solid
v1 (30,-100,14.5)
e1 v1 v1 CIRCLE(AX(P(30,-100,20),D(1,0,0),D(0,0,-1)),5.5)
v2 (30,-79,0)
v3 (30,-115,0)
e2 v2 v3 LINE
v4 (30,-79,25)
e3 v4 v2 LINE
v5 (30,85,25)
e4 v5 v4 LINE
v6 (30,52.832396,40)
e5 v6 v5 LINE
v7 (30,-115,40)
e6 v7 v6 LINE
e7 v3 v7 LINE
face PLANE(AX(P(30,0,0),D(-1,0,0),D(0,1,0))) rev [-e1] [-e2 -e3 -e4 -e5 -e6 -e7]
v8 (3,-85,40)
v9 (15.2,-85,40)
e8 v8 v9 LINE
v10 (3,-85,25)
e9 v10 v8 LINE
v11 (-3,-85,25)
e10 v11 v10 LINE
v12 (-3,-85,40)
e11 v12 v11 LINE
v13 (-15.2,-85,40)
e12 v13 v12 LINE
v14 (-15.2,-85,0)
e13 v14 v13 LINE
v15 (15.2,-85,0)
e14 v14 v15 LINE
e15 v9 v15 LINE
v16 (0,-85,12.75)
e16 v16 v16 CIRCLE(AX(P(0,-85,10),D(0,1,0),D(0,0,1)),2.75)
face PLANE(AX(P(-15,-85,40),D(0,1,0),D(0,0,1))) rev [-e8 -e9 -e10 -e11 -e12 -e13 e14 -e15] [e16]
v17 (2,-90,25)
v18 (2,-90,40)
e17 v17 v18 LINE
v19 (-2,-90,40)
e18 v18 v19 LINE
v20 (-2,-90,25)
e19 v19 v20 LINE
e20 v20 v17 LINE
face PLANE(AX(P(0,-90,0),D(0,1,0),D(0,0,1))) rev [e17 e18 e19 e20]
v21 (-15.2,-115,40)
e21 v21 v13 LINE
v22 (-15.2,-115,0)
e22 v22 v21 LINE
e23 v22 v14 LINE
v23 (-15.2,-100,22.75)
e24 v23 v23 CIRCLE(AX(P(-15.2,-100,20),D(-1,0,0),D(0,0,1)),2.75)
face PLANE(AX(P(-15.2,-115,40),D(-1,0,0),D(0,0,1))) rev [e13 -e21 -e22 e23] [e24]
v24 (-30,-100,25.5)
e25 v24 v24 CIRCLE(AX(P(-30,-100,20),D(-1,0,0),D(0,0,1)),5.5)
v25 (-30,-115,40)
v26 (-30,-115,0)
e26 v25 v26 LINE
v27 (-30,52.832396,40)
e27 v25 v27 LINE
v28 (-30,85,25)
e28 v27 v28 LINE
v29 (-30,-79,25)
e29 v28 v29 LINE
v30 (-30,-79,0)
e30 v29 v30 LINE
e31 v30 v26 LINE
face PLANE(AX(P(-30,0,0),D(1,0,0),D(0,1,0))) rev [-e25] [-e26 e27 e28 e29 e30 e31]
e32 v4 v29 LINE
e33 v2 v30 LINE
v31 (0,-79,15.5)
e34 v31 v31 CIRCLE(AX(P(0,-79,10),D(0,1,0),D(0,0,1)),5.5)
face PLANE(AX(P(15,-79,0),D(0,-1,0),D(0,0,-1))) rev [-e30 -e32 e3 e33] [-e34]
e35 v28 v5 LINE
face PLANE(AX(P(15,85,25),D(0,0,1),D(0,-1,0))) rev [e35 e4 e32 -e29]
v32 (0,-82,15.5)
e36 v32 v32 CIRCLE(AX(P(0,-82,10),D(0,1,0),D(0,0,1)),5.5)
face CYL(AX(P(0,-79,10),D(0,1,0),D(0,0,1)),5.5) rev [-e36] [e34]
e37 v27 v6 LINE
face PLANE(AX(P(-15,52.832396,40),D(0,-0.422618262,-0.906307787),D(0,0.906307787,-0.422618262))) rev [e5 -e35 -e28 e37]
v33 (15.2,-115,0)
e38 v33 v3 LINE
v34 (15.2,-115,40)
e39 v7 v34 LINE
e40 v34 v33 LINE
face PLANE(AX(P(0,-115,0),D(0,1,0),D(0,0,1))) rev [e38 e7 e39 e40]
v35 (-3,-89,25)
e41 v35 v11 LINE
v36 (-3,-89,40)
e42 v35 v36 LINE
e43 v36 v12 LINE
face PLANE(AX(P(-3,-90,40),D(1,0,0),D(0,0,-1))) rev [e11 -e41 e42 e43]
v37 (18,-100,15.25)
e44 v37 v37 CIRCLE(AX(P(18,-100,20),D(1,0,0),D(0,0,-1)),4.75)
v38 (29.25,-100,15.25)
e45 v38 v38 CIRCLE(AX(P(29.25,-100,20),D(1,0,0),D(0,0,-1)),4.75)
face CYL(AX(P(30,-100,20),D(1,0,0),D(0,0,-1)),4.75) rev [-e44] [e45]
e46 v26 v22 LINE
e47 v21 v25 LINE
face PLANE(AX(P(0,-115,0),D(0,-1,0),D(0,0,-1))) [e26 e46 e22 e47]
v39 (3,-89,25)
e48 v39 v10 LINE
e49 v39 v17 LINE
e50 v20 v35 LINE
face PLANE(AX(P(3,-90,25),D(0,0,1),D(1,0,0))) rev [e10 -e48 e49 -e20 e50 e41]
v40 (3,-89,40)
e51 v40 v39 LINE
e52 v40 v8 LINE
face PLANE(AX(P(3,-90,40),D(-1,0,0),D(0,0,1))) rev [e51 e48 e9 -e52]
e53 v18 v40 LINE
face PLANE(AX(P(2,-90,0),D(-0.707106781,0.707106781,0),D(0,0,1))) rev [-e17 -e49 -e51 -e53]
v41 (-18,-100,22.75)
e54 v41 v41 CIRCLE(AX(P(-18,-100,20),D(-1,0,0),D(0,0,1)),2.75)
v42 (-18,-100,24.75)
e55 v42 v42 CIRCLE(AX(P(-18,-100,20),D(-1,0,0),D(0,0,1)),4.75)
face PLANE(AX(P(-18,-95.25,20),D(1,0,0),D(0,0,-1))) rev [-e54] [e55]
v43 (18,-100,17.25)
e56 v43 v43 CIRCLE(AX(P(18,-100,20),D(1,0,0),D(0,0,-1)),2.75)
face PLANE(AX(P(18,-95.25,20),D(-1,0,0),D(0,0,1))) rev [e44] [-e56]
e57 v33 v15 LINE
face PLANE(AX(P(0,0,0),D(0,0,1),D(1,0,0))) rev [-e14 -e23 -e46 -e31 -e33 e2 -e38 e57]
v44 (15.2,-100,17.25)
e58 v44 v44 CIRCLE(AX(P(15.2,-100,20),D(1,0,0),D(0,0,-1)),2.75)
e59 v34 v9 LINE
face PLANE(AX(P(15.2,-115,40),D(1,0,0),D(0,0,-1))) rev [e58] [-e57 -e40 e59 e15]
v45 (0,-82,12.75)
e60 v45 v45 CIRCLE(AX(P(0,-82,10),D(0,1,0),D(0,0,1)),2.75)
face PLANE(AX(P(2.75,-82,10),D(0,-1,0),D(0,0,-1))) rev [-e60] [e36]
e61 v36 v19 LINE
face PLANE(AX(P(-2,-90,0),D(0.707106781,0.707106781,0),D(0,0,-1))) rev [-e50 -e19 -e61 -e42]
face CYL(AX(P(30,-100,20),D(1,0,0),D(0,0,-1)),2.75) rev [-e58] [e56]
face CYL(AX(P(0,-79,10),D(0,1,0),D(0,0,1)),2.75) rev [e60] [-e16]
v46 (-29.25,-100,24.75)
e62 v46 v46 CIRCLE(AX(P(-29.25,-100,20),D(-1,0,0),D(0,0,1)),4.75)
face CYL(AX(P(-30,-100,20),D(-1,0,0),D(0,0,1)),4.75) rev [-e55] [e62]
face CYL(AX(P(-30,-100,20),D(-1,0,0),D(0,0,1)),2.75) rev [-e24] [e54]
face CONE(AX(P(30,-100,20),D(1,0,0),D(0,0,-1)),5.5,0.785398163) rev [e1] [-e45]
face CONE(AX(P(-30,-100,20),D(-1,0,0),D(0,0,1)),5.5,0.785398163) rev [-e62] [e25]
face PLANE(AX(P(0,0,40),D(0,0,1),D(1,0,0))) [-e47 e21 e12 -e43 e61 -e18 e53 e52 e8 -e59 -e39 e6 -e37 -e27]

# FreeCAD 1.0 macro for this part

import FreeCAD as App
import Part
import Sketcher
Q = App.Units.Quantity


def edges_at(feature, points):
    """Names of the edges that pass closest to the given points."""
    edges = feature.Shape.Edges
    near = lambda p: min(range(len(edges)), key=lambda i: edges[i].distToShape(Part.Vertex(*p))[0])
    return sorted({f"Edge{near(p) + 1}" for p in points})

doc = App.newDocument("Part")
body = doc.addObject("PartDesign::Body", "Body")

# Sketch on XY plane
sketch1 = doc.addObject("Sketcher::SketchObject", "Sketch")
body.addObject(sketch1)
sketch1.AttachmentSupport = (doc.XY_Plane, [""])
sketch1.MapMode = "FlatFace"
sketch1.addGeometry([
    Part.LineSegment(App.Vector(-15, 85, 0), App.Vector(-15, -85, 0)),
    Part.LineSegment(App.Vector(-15, -85, 0), App.Vector(15, -85, 0)),
    Part.LineSegment(App.Vector(15, -85, 0), App.Vector(15, 85, 0)),
    Part.LineSegment(App.Vector(15, 85, 0), App.Vector(-15, 85, 0)),
], False)
sketch1.addConstraint([
    Sketcher.Constraint("Coincident", 0, 2, 1, 1),
    Sketcher.Constraint("Coincident", 1, 2, 2, 1),
    Sketcher.Constraint("Coincident", 2, 2, 3, 1),
    Sketcher.Constraint("Coincident", 3, 2, 0, 1),
    Sketcher.Constraint("Vertical", 0),
    Sketcher.Constraint("Horizontal", 1),
    Sketcher.Constraint("Vertical", 2),
    Sketcher.Constraint("Horizontal", 3),
    Sketcher.Constraint("Symmetric", 0, 2, 2, 2, -1, 1),
    Sketcher.Constraint("DistanceX", 1, 1, 1, 2, Q("30 mm")),
    Sketcher.Constraint("DistanceY", 0, 2, 0, 1, Q("170 mm")),
])
pad1 = doc.addObject("PartDesign::Pad", "Pad")
body.addObject(pad1)
pad1.Profile = sketch1
pad1.Length = 40

# Sketch on YZ plane
sketch2 = doc.addObject("Sketcher::SketchObject", "Sketch001")
body.addObject(sketch2)
sketch2.AttachmentSupport = (doc.YZ_Plane, [""])
sketch2.MapMode = "FlatFace"
sketch2.AttachmentOffset = App.Placement(App.Vector(0, 0, 15), App.Rotation())
sketch2.addGeometry([
    Part.LineSegment(App.Vector(85, 40, 0), App.Vector(53, 40, 0)),
    Part.LineSegment(App.Vector(53, 40, 0), App.Vector(85, 25, 0)),
    Part.LineSegment(App.Vector(85, 25, 0), App.Vector(85, 40, 0)),
], False)
sketch2.addConstraint([
    Sketcher.Constraint("Coincident", 0, 2, 1, 1),
    Sketcher.Constraint("Coincident", 1, 2, 2, 1),
    Sketcher.Constraint("Coincident", 2, 2, 0, 1),
    Sketcher.Constraint("Horizontal", 0),
    Sketcher.Constraint("Vertical", 2),
    Sketcher.Constraint("DistanceY", 2, 1, 2, 2, Q("15 mm")),
    Sketcher.Constraint("Angle", 1, Q("-25 deg")),
    Sketcher.Constraint("DistanceY", -1, 1, 0, 2, Q("40 mm")),
    Sketcher.Constraint("DistanceX", -1, 1, 1, 2, Q("85 mm")),
])
pocket1 = doc.addObject("PartDesign::Pocket", "Pocket")
body.addObject(pocket1)
pocket1.Profile = sketch2
pocket1.Type = "ThroughAll"

# Sketch on YZ plane
sketch3 = doc.addObject("Sketcher::SketchObject", "Sketch002")
body.addObject(sketch3)
sketch3.AttachmentSupport = (doc.YZ_Plane, [""])
sketch3.MapMode = "FlatFace"
sketch3.AttachmentOffset = App.Placement(App.Vector(0, 0, -15), App.Rotation())
sketch3.addGeometry([
    Part.LineSegment(App.Vector(85, 0, 0), App.Vector(-79, 0, 0)),
    Part.LineSegment(App.Vector(-79, 0, 0), App.Vector(-79, 25, 0)),
    Part.LineSegment(App.Vector(-79, 25, 0), App.Vector(85, 25, 0)),
    Part.LineSegment(App.Vector(85, 25, 0), App.Vector(85, 0, 0)),
], False)
sketch3.addConstraint([
    Sketcher.Constraint("Coincident", 0, 2, 1, 1),
    Sketcher.Constraint("Coincident", 1, 2, 2, 1),
    Sketcher.Constraint("Coincident", 2, 2, 3, 1),
    Sketcher.Constraint("Coincident", 3, 2, 0, 1),
    Sketcher.Constraint("Horizontal", 0),
    Sketcher.Constraint("Vertical", 1),
    Sketcher.Constraint("Horizontal", 2),
    Sketcher.Constraint("Vertical", 3),
    Sketcher.Constraint("PointOnObject", 0, 2, -1),
    Sketcher.Constraint("DistanceX", 0, 2, 0, 1, Q("164 mm")),
    Sketcher.Constraint("DistanceY", 1, 1, 1, 2, Q("25 mm")),
    Sketcher.Constraint("DistanceX", 0, 2, -1, 1, Q("79 mm")),
])
pocket2 = doc.addObject("PartDesign::Pocket", "Pocket001")
body.addObject(pocket2)
pocket2.Profile = sketch3
pocket2.Type = "ThroughAll"
pocket2.Reversed = True

# Sketch on XZ plane
sketch4 = doc.addObject("Sketcher::SketchObject", "Sketch003")
body.addObject(sketch4)
sketch4.AttachmentSupport = (doc.XZ_Plane, [""])
sketch4.MapMode = "FlatFace"
sketch4.AttachmentOffset = App.Placement(App.Vector(0, 0, 79), App.Rotation())
sketch4.addGeometry(Part.Circle(App.Vector(0, 10, 0), App.Vector(0, 0, 1), 2.8), False)
sketch4.addConstraint([
    Sketcher.Constraint("PointOnObject", 0, 3, -2),
    Sketcher.Constraint("Diameter", 0, Q("5.5 mm")),
    Sketcher.Constraint("DistanceY", -1, 1, 0, 3, Q("10 mm")),
])
doc.recompute()
hole = doc.addObject("PartDesign::Hole", "Hole")
body.addObject(hole)
hole.Profile = sketch4
hole.ThreadType = "None"
hole.Diameter = 5.5
hole.DepthType = "ThroughAll"
hole.HoleCutType = "Counterbore"
hole.HoleCutDiameter = 11
hole.HoleCutDepth = 3
hole.Reversed = True

# Sketch on XZ plane
sketch5 = doc.addObject("Sketcher::SketchObject", "Sketch004")
body.addObject(sketch5)
sketch5.AttachmentSupport = (doc.XZ_Plane, [""])
sketch5.MapMode = "FlatFace"
sketch5.AttachmentOffset = App.Placement(App.Vector(0, 0, 85), App.Rotation())
sketch5.addGeometry([
    Part.LineSegment(App.Vector(-3, 40, 0), App.Vector(-3, 25, 0)),
    Part.LineSegment(App.Vector(-3, 25, 0), App.Vector(3, 25, 0)),
    Part.LineSegment(App.Vector(3, 25, 0), App.Vector(3, 40, 0)),
    Part.LineSegment(App.Vector(3, 40, 0), App.Vector(-3, 40, 0)),
], False)
sketch5.addConstraint([
    Sketcher.Constraint("Coincident", 0, 2, 1, 1),
    Sketcher.Constraint("Coincident", 1, 2, 2, 1),
    Sketcher.Constraint("Coincident", 2, 2, 3, 1),
    Sketcher.Constraint("Coincident", 3, 2, 0, 1),
    Sketcher.Constraint("Vertical", 0),
    Sketcher.Constraint("Horizontal", 1),
    Sketcher.Constraint("Vertical", 2),
    Sketcher.Constraint("Horizontal", 3),
    Sketcher.Constraint("DistanceX", 1, 1, 1, 2, Q("6 mm")),
    Sketcher.Constraint("DistanceY", 0, 2, 0, 1, Q("15 mm")),
    Sketcher.Constraint("DistanceX", 0, 2, -1, 1, Q("3 mm")),
    Sketcher.Constraint("DistanceY", -1, 1, 0, 2, Q("25 mm")),
])
pad2 = doc.addObject("PartDesign::Pad", "Pad001")
body.addObject(pad2)
pad2.Profile = sketch5
pad2.Length = 5
doc.recompute()

chamfer = doc.addObject("PartDesign::Chamfer", "Chamfer")
body.addObject(chamfer)
chamfer.Base = (pad2, edges_at(pad2, [(3, -90, 32.5), (-3, -90, 32.5)]))
chamfer.Size = 1

# Sketch on YZ plane
sketch6 = doc.addObject("Sketcher::SketchObject", "Sketch005")
body.addObject(sketch6)
sketch6.AttachmentSupport = (doc.YZ_Plane, [""])
sketch6.MapMode = "FlatFace"
sketch6.AttachmentOffset = App.Placement(App.Vector(0, 0, -15), App.Rotation())
sketch6.addGeometry([
    Part.LineSegment(App.Vector(-79, 25, 0), App.Vector(-79, 0, 0)),  # 0
    Part.LineSegment(App.Vector(-79, 0, 0), App.Vector(-85, 0, 0)),  # 1
    Part.LineSegment(App.Vector(-85, 0, 0), App.Vector(-85, 40, 0)),  # 2
    Part.LineSegment(App.Vector(-85, 40, 0), App.Vector(53, 40, 0)),  # 3
    Part.LineSegment(App.Vector(53, 40, 0), App.Vector(85, 25, 0)),  # 4
    Part.LineSegment(App.Vector(85, 25, 0), App.Vector(-79, 25, 0)),  # 5
], False)
sketch6.addConstraint([
    Sketcher.Constraint("Coincident", 0, 2, 1, 1),
    Sketcher.Constraint("Coincident", 1, 2, 2, 1),
    Sketcher.Constraint("Coincident", 2, 2, 3, 1),
    Sketcher.Constraint("Coincident", 3, 2, 4, 1),
    Sketcher.Constraint("Coincident", 4, 2, 5, 1),
    Sketcher.Constraint("Coincident", 5, 2, 0, 1),
    Sketcher.Constraint("Vertical", 0),
    Sketcher.Constraint("Horizontal", 1),
    Sketcher.Constraint("Vertical", 2),
    Sketcher.Constraint("Horizontal", 3),
    Sketcher.Constraint("Horizontal", 5),
    Sketcher.Constraint("PointOnObject", 0, 2, -1),
    Sketcher.Constraint("DistanceX", 1, 2, 1, 1, Q("6 mm")),
    Sketcher.Constraint("DistanceX", 5, 2, 5, 1, Q("164 mm")),
    Sketcher.Constraint("DistanceY", 0, 2, 0, 1, Q("25 mm")),
    Sketcher.Constraint("DistanceY", 2, 1, 2, 2, Q("40 mm")),
    Sketcher.Constraint("Angle", 4, Q("-25 deg")),
    Sketcher.Constraint("DistanceX", 0, 2, -1, 1, Q("79 mm")),
])
pad3 = doc.addObject("PartDesign::Pad", "Pad002")
body.addObject(pad3)
pad3.Profile = sketch6
pad3.Length = 15
pad3.Reversed = True
doc.recompute()

mirrored = doc.addObject("PartDesign::Mirrored", "Mirrored")
body.addObject(mirrored)
mirrored.Originals = [pad3]
mirrored.MirrorPlane = (doc.YZ_Plane, [""])
body.Tip = mirrored

# Sketch on XZ plane
sketch7 = doc.addObject("Sketcher::SketchObject", "Sketch006")
body.addObject(sketch7)
sketch7.AttachmentSupport = (doc.XZ_Plane, [""])
sketch7.MapMode = "FlatFace"
sketch7.AttachmentOffset = App.Placement(App.Vector(0, 0, 85), App.Rotation())
sketch7.addGeometry([
    Part.LineSegment(App.Vector(-30, 40, 0), App.Vector(-30, 0, 0)),  # 0
    Part.LineSegment(App.Vector(-30, 0, 0), App.Vector(-15, 0, 0)),  # 1
    Part.LineSegment(App.Vector(-15, 0, 0), App.Vector(-15, 40, 0)),  # 2
    Part.LineSegment(App.Vector(-15, 40, 0), App.Vector(-30, 40, 0)),  # 3
    Part.LineSegment(App.Vector(15, 40, 0), App.Vector(15, 0, 0)),  # 4
    Part.LineSegment(App.Vector(15, 0, 0), App.Vector(30, 0, 0)),  # 5
    Part.LineSegment(App.Vector(30, 0, 0), App.Vector(30, 40, 0)),  # 6
    Part.LineSegment(App.Vector(30, 40, 0), App.Vector(15, 40, 0)),  # 7
], False)
sketch7.addConstraint([
    Sketcher.Constraint("Coincident", 0, 2, 1, 1),
    Sketcher.Constraint("Coincident", 1, 2, 2, 1),
    Sketcher.Constraint("Coincident", 2, 2, 3, 1),
    Sketcher.Constraint("Coincident", 3, 2, 0, 1),
    Sketcher.Constraint("Coincident", 4, 2, 5, 1),
    Sketcher.Constraint("Coincident", 5, 2, 6, 1),
    Sketcher.Constraint("Coincident", 6, 2, 7, 1),
    Sketcher.Constraint("Coincident", 7, 2, 4, 1),
    Sketcher.Constraint("Vertical", 0),
    Sketcher.Constraint("Horizontal", 1),
    Sketcher.Constraint("Vertical", 2),
    Sketcher.Constraint("Horizontal", 3),
    Sketcher.Constraint("Vertical", 4),
    Sketcher.Constraint("Horizontal", 5),
    Sketcher.Constraint("Vertical", 6),
    Sketcher.Constraint("Horizontal", 7),
    Sketcher.Constraint("Symmetric", 1, 2, 4, 2, -1, 1),
    Sketcher.Constraint("Symmetric", 0, 2, 5, 2, -2),
    Sketcher.Constraint("Horizontal", 3, 2, 6, 2),
    Sketcher.Constraint("DistanceY", 0, 2, 0, 1, Q("40 mm")),
    Sketcher.Constraint("DistanceX", 1, 1, 1, 2, Q("14.8 mm")),
    Sketcher.Constraint("DistanceX", 0, 2, -1, 1, Q("30 mm")),
])
pad4 = doc.addObject("PartDesign::Pad", "Pad003")
body.addObject(pad4)
pad4.Profile = sketch7
pad4.Length = 30

# Sketch on XZ plane
sketch8 = doc.addObject("Sketcher::SketchObject", "Sketch007")
body.addObject(sketch8)
sketch8.AttachmentSupport = (doc.XZ_Plane, [""])
sketch8.MapMode = "FlatFace"
sketch8.AttachmentOffset = App.Placement(App.Vector(0, 0, 100), App.Rotation())
sketch8.addGeometry([
    Part.LineSegment(App.Vector(15.2, 20, 0), App.Vector(30, 20, 0)),  # 0
    Part.LineSegment(App.Vector(30, 20, 0), App.Vector(30, 14.5, 0)),  # 1
    Part.LineSegment(App.Vector(30, 14.5, 0), App.Vector(29.2, 15.2, 0)),  # 2
    Part.LineSegment(App.Vector(29.2, 15.2, 0), App.Vector(18, 15.2, 0)),  # 3
    Part.LineSegment(App.Vector(18, 15.2, 0), App.Vector(18, 17.2, 0)),  # 4
    Part.LineSegment(App.Vector(18, 17.2, 0), App.Vector(15.2, 17.2, 0)),  # 5
    Part.LineSegment(App.Vector(15.2, 17.2, 0), App.Vector(15.2, 20, 0)),  # 6
], False)
sketch8.addGeometry(Part.LineSegment(App.Vector(30, 20, 0), App.Vector(15.2, 20, 0)), True)  # axis
sketch8.addConstraint([
    Sketcher.Constraint("Coincident", 0, 2, 1, 1),
    Sketcher.Constraint("Coincident", 1, 2, 2, 1),
    Sketcher.Constraint("Coincident", 2, 2, 3, 1),
    Sketcher.Constraint("Coincident", 3, 2, 4, 1),
    Sketcher.Constraint("Coincident", 4, 2, 5, 1),
    Sketcher.Constraint("Coincident", 5, 2, 6, 1),
    Sketcher.Constraint("Coincident", 6, 2, 0, 1),
    Sketcher.Constraint("Horizontal", 0),
    Sketcher.Constraint("Vertical", 1),
    Sketcher.Constraint("Horizontal", 3),
    Sketcher.Constraint("Vertical", 4),
    Sketcher.Constraint("Horizontal", 5),
    Sketcher.Constraint("Vertical", 6),
    Sketcher.Constraint("Horizontal", 7),
    Sketcher.Constraint("Coincident", 7, 1, 0, 2),
    Sketcher.Constraint("Vertical", 5, 2, 7, 2),
    Sketcher.Constraint("DistanceY", 4, 1, 4, 2, Q("2 mm")),
    Sketcher.Constraint("Angle", 2, Q("135 deg")),
    Sketcher.Constraint("DistanceX", 0, 1, 0, 2, Q("14.8 mm")),
    Sketcher.Constraint("DistanceX", 5, 2, 5, 1, Q("2.8 mm")),
    Sketcher.Constraint("DistanceY", 1, 2, 1, 1, Q("5.5 mm")),
    Sketcher.Constraint("DistanceX", -1, 1, 0, 2, Q("30 mm")),
    Sketcher.Constraint("DistanceY", -1, 1, 0, 2, Q("20 mm")),
    Sketcher.Constraint("DistanceX", 3, 2, 3, 1, Q("11.25 mm")),
])
groove = doc.addObject("PartDesign::Groove", "Groove")
body.addObject(groove)
groove.Profile = sketch8
groove.ReferenceAxis = (sketch8, ["Axis0"])
groove.Angle = 360
doc.recompute()

mirrored2 = doc.addObject("PartDesign::Mirrored", "Mirrored001")
body.addObject(mirrored2)
mirrored2.Originals = [groove]
mirrored2.MirrorPlane = (doc.YZ_Plane, [""])
body.Tip = mirrored2

doc.recompute()
